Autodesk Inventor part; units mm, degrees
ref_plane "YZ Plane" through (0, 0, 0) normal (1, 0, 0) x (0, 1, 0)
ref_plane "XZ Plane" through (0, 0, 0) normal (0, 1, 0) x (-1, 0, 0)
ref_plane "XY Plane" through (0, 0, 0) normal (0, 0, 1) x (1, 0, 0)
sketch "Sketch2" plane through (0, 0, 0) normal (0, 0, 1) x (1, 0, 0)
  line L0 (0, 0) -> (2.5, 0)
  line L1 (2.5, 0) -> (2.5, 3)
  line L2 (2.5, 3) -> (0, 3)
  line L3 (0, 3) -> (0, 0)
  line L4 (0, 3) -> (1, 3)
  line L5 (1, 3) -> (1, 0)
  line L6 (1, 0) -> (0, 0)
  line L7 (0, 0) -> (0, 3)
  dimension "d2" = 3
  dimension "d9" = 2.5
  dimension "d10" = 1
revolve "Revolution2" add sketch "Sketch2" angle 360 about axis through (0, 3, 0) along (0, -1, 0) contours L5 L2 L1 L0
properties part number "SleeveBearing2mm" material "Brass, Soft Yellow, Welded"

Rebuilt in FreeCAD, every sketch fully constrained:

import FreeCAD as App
import Part
import Sketcher

V = App.Vector

doc = App.newDocument("Part")
body = doc.addObject("PartDesign::Body", "Body")

# Sketch on XY plane
sketch1 = body.newObject("Sketcher::SketchObject", "Sketch")
sketch1.AttachmentSupport = (doc.getObject("XY_Plane"), [""])
sketch1.MapMode = "FlatFace"
sketch1.addGeometry([
    Part.LineSegment(V(1, 3, 0), V(1, 0, 0)),
    Part.LineSegment(V(1, 0, 0), V(2.5, 0, 0)),
    Part.LineSegment(V(2.5, 0, 0), V(2.5, 3, 0)),
    Part.LineSegment(V(2.5, 3, 0), V(1, 3, 0)),
], False)
sketch1.addConstraint([
    Sketcher.Constraint("Coincident", 0, 2, 1, 1),
    Sketcher.Constraint("Coincident", 1, 2, 2, 1),
    Sketcher.Constraint("Coincident", 2, 2, 3, 1),
    Sketcher.Constraint("Coincident", 3, 2, 0, 1),
    Sketcher.Constraint("Vertical", 0),
    Sketcher.Constraint("Horizontal", 1),
    Sketcher.Constraint("Vertical", 2),
    Sketcher.Constraint("Horizontal", 3),
    Sketcher.Constraint("PointOnObject", 0, 2, -1),
    Sketcher.Constraint("DistanceY", 0, 2, 0, 1, 3.0),
    Sketcher.Constraint("DistanceX", -1, 1, 0, 2, 1.0),
    Sketcher.Constraint("DistanceX", -1, 1, 1, 2, 2.5),
])
revolution = body.newObject("PartDesign::Revolution", "Revolution")
revolution.Profile = sketch1
revolution.ReferenceAxis = (sketch1, ["V_Axis"])
revolution.Angle = 360

doc.recompute()
